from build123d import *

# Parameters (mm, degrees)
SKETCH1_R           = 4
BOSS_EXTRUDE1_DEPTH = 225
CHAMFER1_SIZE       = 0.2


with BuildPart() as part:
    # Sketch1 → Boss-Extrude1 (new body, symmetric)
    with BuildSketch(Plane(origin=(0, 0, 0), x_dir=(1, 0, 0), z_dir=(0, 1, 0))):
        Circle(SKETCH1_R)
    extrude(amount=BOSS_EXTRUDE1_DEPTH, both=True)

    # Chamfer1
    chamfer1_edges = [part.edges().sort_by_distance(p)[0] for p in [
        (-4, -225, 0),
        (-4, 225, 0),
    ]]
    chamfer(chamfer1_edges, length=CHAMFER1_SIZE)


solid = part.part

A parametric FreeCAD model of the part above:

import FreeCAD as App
import Part
import Sketcher
from FreeCAD import Vector
Q = App.Units.Quantity


def edges_at(feature, points):
    """Names of the edges that pass closest to the given points."""
    edges = feature.Shape.Edges
    near = lambda p: min(range(len(edges)), key=lambda i: edges[i].distToShape(Part.Vertex(*p))[0])
    return sorted({f"Edge{near(p) + 1}" for p in points})

doc = App.newDocument("Part")
params = doc.addObject("Spreadsheet::Sheet", "Params")
for row, (alias, value) in enumerate([
    ("sketch1_diameter", "8 mm"),
    ("pad1_length", "450 mm"),
    ("chamfer_size", "0.2 mm"),
], start=1):
    params.set(f"A{row}", alias)
    params.set(f"B{row}", "=" + value)
    params.setAlias(f"B{row}", alias)

body = doc.addObject("PartDesign::Body", "Body")

# Sketch on XZ plane
sketch1 = body.newObject("Sketcher::SketchObject", "Sketch")
sketch1.AttachmentSupport = (doc.getObject("XZ_Plane"), [""])
sketch1.MapMode = "FlatFace"
sketch1.addGeometry(Part.Circle(Vector(0, 0, 0), Vector(0, 0, 1), 4), False)
sketch1.addConstraint([
    Sketcher.Constraint("Coincident", 0, 3, -1, 1),
    Sketcher.Constraint("Diameter", 0, Q("8 mm")),
])
sketch1.setExpression("Constraints[1]", "Params.sketch1_diameter")
pad1 = body.newObject("PartDesign::Pad", "Pad")
pad1.Profile = sketch1
pad1.setExpression("Length", "Params.pad1_length")
pad1.Midplane = True
doc.recompute()

chamfer = body.newObject("PartDesign::Chamfer", "Chamfer")
chamfer.Base = (pad1, edges_at(pad1, [(-4, -225, 0), (-4, 225, 0)]))
chamfer.setExpression("Size", "Params.chamfer_size")

doc.recompute()
